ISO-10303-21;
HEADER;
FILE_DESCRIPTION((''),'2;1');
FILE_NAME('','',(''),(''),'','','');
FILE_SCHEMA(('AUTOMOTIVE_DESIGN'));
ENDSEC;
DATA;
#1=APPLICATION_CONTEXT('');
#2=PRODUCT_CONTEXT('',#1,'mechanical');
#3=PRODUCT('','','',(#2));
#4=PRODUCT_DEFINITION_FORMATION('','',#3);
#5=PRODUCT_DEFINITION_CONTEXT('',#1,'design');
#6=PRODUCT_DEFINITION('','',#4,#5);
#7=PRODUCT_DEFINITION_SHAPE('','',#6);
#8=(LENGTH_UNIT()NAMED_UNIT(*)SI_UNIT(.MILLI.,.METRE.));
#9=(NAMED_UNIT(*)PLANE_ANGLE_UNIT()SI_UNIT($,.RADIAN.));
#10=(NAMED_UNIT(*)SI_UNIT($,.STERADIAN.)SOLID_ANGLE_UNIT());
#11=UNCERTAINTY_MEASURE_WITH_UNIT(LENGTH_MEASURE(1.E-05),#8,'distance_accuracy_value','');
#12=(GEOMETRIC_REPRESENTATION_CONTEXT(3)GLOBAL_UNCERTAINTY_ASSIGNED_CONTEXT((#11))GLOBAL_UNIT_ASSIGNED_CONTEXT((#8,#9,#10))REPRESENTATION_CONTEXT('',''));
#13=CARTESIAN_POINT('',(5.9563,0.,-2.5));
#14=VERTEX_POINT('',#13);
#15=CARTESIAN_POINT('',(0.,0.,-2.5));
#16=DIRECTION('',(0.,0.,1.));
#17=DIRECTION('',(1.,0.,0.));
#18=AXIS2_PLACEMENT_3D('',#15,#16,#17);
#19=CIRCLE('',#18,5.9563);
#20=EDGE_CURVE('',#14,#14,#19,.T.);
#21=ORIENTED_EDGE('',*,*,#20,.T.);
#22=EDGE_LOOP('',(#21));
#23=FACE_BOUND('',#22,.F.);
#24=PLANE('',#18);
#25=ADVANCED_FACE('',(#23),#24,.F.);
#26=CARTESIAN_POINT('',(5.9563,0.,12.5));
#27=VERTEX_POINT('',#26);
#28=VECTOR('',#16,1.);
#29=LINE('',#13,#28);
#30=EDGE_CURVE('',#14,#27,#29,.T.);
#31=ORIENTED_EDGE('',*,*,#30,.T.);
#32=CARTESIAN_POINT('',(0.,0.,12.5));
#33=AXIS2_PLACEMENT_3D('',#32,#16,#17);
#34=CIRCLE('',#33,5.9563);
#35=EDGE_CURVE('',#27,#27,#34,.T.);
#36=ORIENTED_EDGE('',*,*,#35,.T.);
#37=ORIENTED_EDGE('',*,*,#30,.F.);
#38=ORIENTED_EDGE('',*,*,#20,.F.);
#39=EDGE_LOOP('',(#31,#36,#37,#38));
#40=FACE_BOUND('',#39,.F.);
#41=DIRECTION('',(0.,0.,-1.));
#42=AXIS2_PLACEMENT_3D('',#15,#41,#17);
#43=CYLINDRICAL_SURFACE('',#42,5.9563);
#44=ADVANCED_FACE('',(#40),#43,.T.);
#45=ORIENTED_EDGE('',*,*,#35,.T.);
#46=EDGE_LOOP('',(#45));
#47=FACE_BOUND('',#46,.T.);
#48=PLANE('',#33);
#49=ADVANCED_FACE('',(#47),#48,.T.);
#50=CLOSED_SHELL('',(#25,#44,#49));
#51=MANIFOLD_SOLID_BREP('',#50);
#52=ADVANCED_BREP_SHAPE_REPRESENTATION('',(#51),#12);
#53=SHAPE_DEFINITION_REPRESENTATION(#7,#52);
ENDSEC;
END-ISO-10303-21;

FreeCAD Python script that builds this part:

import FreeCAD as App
import Part
import Sketcher
from FreeCAD import Vector

doc = App.newDocument("Part")
body = doc.addObject("PartDesign::Body", "Body")

# Sketch on XY plane
sketch1 = body.newObject("Sketcher::SketchObject", "Sketch")
sketch1.AttachmentSupport = (doc.getObject("XY_Plane"), [""])
sketch1.MapMode = "FlatFace"
sketch1.AttachmentOffset = App.Placement(Vector(0, 0, -2.5), App.Rotation())
sketch1.addGeometry(Part.Circle(Vector(0, 0, 0), Vector(0, 0, 1), 6), False)
sketch1.addConstraint(Sketcher.Constraint("Coincident", 0, 3, -1, 1))
sketch1.addConstraint(Sketcher.Constraint("Diameter", 0, 11.9126))
pad1 = body.newObject("PartDesign::Pad", "Pad")
pad1.Profile = sketch1
pad1.Length = 15

doc.recompute()
